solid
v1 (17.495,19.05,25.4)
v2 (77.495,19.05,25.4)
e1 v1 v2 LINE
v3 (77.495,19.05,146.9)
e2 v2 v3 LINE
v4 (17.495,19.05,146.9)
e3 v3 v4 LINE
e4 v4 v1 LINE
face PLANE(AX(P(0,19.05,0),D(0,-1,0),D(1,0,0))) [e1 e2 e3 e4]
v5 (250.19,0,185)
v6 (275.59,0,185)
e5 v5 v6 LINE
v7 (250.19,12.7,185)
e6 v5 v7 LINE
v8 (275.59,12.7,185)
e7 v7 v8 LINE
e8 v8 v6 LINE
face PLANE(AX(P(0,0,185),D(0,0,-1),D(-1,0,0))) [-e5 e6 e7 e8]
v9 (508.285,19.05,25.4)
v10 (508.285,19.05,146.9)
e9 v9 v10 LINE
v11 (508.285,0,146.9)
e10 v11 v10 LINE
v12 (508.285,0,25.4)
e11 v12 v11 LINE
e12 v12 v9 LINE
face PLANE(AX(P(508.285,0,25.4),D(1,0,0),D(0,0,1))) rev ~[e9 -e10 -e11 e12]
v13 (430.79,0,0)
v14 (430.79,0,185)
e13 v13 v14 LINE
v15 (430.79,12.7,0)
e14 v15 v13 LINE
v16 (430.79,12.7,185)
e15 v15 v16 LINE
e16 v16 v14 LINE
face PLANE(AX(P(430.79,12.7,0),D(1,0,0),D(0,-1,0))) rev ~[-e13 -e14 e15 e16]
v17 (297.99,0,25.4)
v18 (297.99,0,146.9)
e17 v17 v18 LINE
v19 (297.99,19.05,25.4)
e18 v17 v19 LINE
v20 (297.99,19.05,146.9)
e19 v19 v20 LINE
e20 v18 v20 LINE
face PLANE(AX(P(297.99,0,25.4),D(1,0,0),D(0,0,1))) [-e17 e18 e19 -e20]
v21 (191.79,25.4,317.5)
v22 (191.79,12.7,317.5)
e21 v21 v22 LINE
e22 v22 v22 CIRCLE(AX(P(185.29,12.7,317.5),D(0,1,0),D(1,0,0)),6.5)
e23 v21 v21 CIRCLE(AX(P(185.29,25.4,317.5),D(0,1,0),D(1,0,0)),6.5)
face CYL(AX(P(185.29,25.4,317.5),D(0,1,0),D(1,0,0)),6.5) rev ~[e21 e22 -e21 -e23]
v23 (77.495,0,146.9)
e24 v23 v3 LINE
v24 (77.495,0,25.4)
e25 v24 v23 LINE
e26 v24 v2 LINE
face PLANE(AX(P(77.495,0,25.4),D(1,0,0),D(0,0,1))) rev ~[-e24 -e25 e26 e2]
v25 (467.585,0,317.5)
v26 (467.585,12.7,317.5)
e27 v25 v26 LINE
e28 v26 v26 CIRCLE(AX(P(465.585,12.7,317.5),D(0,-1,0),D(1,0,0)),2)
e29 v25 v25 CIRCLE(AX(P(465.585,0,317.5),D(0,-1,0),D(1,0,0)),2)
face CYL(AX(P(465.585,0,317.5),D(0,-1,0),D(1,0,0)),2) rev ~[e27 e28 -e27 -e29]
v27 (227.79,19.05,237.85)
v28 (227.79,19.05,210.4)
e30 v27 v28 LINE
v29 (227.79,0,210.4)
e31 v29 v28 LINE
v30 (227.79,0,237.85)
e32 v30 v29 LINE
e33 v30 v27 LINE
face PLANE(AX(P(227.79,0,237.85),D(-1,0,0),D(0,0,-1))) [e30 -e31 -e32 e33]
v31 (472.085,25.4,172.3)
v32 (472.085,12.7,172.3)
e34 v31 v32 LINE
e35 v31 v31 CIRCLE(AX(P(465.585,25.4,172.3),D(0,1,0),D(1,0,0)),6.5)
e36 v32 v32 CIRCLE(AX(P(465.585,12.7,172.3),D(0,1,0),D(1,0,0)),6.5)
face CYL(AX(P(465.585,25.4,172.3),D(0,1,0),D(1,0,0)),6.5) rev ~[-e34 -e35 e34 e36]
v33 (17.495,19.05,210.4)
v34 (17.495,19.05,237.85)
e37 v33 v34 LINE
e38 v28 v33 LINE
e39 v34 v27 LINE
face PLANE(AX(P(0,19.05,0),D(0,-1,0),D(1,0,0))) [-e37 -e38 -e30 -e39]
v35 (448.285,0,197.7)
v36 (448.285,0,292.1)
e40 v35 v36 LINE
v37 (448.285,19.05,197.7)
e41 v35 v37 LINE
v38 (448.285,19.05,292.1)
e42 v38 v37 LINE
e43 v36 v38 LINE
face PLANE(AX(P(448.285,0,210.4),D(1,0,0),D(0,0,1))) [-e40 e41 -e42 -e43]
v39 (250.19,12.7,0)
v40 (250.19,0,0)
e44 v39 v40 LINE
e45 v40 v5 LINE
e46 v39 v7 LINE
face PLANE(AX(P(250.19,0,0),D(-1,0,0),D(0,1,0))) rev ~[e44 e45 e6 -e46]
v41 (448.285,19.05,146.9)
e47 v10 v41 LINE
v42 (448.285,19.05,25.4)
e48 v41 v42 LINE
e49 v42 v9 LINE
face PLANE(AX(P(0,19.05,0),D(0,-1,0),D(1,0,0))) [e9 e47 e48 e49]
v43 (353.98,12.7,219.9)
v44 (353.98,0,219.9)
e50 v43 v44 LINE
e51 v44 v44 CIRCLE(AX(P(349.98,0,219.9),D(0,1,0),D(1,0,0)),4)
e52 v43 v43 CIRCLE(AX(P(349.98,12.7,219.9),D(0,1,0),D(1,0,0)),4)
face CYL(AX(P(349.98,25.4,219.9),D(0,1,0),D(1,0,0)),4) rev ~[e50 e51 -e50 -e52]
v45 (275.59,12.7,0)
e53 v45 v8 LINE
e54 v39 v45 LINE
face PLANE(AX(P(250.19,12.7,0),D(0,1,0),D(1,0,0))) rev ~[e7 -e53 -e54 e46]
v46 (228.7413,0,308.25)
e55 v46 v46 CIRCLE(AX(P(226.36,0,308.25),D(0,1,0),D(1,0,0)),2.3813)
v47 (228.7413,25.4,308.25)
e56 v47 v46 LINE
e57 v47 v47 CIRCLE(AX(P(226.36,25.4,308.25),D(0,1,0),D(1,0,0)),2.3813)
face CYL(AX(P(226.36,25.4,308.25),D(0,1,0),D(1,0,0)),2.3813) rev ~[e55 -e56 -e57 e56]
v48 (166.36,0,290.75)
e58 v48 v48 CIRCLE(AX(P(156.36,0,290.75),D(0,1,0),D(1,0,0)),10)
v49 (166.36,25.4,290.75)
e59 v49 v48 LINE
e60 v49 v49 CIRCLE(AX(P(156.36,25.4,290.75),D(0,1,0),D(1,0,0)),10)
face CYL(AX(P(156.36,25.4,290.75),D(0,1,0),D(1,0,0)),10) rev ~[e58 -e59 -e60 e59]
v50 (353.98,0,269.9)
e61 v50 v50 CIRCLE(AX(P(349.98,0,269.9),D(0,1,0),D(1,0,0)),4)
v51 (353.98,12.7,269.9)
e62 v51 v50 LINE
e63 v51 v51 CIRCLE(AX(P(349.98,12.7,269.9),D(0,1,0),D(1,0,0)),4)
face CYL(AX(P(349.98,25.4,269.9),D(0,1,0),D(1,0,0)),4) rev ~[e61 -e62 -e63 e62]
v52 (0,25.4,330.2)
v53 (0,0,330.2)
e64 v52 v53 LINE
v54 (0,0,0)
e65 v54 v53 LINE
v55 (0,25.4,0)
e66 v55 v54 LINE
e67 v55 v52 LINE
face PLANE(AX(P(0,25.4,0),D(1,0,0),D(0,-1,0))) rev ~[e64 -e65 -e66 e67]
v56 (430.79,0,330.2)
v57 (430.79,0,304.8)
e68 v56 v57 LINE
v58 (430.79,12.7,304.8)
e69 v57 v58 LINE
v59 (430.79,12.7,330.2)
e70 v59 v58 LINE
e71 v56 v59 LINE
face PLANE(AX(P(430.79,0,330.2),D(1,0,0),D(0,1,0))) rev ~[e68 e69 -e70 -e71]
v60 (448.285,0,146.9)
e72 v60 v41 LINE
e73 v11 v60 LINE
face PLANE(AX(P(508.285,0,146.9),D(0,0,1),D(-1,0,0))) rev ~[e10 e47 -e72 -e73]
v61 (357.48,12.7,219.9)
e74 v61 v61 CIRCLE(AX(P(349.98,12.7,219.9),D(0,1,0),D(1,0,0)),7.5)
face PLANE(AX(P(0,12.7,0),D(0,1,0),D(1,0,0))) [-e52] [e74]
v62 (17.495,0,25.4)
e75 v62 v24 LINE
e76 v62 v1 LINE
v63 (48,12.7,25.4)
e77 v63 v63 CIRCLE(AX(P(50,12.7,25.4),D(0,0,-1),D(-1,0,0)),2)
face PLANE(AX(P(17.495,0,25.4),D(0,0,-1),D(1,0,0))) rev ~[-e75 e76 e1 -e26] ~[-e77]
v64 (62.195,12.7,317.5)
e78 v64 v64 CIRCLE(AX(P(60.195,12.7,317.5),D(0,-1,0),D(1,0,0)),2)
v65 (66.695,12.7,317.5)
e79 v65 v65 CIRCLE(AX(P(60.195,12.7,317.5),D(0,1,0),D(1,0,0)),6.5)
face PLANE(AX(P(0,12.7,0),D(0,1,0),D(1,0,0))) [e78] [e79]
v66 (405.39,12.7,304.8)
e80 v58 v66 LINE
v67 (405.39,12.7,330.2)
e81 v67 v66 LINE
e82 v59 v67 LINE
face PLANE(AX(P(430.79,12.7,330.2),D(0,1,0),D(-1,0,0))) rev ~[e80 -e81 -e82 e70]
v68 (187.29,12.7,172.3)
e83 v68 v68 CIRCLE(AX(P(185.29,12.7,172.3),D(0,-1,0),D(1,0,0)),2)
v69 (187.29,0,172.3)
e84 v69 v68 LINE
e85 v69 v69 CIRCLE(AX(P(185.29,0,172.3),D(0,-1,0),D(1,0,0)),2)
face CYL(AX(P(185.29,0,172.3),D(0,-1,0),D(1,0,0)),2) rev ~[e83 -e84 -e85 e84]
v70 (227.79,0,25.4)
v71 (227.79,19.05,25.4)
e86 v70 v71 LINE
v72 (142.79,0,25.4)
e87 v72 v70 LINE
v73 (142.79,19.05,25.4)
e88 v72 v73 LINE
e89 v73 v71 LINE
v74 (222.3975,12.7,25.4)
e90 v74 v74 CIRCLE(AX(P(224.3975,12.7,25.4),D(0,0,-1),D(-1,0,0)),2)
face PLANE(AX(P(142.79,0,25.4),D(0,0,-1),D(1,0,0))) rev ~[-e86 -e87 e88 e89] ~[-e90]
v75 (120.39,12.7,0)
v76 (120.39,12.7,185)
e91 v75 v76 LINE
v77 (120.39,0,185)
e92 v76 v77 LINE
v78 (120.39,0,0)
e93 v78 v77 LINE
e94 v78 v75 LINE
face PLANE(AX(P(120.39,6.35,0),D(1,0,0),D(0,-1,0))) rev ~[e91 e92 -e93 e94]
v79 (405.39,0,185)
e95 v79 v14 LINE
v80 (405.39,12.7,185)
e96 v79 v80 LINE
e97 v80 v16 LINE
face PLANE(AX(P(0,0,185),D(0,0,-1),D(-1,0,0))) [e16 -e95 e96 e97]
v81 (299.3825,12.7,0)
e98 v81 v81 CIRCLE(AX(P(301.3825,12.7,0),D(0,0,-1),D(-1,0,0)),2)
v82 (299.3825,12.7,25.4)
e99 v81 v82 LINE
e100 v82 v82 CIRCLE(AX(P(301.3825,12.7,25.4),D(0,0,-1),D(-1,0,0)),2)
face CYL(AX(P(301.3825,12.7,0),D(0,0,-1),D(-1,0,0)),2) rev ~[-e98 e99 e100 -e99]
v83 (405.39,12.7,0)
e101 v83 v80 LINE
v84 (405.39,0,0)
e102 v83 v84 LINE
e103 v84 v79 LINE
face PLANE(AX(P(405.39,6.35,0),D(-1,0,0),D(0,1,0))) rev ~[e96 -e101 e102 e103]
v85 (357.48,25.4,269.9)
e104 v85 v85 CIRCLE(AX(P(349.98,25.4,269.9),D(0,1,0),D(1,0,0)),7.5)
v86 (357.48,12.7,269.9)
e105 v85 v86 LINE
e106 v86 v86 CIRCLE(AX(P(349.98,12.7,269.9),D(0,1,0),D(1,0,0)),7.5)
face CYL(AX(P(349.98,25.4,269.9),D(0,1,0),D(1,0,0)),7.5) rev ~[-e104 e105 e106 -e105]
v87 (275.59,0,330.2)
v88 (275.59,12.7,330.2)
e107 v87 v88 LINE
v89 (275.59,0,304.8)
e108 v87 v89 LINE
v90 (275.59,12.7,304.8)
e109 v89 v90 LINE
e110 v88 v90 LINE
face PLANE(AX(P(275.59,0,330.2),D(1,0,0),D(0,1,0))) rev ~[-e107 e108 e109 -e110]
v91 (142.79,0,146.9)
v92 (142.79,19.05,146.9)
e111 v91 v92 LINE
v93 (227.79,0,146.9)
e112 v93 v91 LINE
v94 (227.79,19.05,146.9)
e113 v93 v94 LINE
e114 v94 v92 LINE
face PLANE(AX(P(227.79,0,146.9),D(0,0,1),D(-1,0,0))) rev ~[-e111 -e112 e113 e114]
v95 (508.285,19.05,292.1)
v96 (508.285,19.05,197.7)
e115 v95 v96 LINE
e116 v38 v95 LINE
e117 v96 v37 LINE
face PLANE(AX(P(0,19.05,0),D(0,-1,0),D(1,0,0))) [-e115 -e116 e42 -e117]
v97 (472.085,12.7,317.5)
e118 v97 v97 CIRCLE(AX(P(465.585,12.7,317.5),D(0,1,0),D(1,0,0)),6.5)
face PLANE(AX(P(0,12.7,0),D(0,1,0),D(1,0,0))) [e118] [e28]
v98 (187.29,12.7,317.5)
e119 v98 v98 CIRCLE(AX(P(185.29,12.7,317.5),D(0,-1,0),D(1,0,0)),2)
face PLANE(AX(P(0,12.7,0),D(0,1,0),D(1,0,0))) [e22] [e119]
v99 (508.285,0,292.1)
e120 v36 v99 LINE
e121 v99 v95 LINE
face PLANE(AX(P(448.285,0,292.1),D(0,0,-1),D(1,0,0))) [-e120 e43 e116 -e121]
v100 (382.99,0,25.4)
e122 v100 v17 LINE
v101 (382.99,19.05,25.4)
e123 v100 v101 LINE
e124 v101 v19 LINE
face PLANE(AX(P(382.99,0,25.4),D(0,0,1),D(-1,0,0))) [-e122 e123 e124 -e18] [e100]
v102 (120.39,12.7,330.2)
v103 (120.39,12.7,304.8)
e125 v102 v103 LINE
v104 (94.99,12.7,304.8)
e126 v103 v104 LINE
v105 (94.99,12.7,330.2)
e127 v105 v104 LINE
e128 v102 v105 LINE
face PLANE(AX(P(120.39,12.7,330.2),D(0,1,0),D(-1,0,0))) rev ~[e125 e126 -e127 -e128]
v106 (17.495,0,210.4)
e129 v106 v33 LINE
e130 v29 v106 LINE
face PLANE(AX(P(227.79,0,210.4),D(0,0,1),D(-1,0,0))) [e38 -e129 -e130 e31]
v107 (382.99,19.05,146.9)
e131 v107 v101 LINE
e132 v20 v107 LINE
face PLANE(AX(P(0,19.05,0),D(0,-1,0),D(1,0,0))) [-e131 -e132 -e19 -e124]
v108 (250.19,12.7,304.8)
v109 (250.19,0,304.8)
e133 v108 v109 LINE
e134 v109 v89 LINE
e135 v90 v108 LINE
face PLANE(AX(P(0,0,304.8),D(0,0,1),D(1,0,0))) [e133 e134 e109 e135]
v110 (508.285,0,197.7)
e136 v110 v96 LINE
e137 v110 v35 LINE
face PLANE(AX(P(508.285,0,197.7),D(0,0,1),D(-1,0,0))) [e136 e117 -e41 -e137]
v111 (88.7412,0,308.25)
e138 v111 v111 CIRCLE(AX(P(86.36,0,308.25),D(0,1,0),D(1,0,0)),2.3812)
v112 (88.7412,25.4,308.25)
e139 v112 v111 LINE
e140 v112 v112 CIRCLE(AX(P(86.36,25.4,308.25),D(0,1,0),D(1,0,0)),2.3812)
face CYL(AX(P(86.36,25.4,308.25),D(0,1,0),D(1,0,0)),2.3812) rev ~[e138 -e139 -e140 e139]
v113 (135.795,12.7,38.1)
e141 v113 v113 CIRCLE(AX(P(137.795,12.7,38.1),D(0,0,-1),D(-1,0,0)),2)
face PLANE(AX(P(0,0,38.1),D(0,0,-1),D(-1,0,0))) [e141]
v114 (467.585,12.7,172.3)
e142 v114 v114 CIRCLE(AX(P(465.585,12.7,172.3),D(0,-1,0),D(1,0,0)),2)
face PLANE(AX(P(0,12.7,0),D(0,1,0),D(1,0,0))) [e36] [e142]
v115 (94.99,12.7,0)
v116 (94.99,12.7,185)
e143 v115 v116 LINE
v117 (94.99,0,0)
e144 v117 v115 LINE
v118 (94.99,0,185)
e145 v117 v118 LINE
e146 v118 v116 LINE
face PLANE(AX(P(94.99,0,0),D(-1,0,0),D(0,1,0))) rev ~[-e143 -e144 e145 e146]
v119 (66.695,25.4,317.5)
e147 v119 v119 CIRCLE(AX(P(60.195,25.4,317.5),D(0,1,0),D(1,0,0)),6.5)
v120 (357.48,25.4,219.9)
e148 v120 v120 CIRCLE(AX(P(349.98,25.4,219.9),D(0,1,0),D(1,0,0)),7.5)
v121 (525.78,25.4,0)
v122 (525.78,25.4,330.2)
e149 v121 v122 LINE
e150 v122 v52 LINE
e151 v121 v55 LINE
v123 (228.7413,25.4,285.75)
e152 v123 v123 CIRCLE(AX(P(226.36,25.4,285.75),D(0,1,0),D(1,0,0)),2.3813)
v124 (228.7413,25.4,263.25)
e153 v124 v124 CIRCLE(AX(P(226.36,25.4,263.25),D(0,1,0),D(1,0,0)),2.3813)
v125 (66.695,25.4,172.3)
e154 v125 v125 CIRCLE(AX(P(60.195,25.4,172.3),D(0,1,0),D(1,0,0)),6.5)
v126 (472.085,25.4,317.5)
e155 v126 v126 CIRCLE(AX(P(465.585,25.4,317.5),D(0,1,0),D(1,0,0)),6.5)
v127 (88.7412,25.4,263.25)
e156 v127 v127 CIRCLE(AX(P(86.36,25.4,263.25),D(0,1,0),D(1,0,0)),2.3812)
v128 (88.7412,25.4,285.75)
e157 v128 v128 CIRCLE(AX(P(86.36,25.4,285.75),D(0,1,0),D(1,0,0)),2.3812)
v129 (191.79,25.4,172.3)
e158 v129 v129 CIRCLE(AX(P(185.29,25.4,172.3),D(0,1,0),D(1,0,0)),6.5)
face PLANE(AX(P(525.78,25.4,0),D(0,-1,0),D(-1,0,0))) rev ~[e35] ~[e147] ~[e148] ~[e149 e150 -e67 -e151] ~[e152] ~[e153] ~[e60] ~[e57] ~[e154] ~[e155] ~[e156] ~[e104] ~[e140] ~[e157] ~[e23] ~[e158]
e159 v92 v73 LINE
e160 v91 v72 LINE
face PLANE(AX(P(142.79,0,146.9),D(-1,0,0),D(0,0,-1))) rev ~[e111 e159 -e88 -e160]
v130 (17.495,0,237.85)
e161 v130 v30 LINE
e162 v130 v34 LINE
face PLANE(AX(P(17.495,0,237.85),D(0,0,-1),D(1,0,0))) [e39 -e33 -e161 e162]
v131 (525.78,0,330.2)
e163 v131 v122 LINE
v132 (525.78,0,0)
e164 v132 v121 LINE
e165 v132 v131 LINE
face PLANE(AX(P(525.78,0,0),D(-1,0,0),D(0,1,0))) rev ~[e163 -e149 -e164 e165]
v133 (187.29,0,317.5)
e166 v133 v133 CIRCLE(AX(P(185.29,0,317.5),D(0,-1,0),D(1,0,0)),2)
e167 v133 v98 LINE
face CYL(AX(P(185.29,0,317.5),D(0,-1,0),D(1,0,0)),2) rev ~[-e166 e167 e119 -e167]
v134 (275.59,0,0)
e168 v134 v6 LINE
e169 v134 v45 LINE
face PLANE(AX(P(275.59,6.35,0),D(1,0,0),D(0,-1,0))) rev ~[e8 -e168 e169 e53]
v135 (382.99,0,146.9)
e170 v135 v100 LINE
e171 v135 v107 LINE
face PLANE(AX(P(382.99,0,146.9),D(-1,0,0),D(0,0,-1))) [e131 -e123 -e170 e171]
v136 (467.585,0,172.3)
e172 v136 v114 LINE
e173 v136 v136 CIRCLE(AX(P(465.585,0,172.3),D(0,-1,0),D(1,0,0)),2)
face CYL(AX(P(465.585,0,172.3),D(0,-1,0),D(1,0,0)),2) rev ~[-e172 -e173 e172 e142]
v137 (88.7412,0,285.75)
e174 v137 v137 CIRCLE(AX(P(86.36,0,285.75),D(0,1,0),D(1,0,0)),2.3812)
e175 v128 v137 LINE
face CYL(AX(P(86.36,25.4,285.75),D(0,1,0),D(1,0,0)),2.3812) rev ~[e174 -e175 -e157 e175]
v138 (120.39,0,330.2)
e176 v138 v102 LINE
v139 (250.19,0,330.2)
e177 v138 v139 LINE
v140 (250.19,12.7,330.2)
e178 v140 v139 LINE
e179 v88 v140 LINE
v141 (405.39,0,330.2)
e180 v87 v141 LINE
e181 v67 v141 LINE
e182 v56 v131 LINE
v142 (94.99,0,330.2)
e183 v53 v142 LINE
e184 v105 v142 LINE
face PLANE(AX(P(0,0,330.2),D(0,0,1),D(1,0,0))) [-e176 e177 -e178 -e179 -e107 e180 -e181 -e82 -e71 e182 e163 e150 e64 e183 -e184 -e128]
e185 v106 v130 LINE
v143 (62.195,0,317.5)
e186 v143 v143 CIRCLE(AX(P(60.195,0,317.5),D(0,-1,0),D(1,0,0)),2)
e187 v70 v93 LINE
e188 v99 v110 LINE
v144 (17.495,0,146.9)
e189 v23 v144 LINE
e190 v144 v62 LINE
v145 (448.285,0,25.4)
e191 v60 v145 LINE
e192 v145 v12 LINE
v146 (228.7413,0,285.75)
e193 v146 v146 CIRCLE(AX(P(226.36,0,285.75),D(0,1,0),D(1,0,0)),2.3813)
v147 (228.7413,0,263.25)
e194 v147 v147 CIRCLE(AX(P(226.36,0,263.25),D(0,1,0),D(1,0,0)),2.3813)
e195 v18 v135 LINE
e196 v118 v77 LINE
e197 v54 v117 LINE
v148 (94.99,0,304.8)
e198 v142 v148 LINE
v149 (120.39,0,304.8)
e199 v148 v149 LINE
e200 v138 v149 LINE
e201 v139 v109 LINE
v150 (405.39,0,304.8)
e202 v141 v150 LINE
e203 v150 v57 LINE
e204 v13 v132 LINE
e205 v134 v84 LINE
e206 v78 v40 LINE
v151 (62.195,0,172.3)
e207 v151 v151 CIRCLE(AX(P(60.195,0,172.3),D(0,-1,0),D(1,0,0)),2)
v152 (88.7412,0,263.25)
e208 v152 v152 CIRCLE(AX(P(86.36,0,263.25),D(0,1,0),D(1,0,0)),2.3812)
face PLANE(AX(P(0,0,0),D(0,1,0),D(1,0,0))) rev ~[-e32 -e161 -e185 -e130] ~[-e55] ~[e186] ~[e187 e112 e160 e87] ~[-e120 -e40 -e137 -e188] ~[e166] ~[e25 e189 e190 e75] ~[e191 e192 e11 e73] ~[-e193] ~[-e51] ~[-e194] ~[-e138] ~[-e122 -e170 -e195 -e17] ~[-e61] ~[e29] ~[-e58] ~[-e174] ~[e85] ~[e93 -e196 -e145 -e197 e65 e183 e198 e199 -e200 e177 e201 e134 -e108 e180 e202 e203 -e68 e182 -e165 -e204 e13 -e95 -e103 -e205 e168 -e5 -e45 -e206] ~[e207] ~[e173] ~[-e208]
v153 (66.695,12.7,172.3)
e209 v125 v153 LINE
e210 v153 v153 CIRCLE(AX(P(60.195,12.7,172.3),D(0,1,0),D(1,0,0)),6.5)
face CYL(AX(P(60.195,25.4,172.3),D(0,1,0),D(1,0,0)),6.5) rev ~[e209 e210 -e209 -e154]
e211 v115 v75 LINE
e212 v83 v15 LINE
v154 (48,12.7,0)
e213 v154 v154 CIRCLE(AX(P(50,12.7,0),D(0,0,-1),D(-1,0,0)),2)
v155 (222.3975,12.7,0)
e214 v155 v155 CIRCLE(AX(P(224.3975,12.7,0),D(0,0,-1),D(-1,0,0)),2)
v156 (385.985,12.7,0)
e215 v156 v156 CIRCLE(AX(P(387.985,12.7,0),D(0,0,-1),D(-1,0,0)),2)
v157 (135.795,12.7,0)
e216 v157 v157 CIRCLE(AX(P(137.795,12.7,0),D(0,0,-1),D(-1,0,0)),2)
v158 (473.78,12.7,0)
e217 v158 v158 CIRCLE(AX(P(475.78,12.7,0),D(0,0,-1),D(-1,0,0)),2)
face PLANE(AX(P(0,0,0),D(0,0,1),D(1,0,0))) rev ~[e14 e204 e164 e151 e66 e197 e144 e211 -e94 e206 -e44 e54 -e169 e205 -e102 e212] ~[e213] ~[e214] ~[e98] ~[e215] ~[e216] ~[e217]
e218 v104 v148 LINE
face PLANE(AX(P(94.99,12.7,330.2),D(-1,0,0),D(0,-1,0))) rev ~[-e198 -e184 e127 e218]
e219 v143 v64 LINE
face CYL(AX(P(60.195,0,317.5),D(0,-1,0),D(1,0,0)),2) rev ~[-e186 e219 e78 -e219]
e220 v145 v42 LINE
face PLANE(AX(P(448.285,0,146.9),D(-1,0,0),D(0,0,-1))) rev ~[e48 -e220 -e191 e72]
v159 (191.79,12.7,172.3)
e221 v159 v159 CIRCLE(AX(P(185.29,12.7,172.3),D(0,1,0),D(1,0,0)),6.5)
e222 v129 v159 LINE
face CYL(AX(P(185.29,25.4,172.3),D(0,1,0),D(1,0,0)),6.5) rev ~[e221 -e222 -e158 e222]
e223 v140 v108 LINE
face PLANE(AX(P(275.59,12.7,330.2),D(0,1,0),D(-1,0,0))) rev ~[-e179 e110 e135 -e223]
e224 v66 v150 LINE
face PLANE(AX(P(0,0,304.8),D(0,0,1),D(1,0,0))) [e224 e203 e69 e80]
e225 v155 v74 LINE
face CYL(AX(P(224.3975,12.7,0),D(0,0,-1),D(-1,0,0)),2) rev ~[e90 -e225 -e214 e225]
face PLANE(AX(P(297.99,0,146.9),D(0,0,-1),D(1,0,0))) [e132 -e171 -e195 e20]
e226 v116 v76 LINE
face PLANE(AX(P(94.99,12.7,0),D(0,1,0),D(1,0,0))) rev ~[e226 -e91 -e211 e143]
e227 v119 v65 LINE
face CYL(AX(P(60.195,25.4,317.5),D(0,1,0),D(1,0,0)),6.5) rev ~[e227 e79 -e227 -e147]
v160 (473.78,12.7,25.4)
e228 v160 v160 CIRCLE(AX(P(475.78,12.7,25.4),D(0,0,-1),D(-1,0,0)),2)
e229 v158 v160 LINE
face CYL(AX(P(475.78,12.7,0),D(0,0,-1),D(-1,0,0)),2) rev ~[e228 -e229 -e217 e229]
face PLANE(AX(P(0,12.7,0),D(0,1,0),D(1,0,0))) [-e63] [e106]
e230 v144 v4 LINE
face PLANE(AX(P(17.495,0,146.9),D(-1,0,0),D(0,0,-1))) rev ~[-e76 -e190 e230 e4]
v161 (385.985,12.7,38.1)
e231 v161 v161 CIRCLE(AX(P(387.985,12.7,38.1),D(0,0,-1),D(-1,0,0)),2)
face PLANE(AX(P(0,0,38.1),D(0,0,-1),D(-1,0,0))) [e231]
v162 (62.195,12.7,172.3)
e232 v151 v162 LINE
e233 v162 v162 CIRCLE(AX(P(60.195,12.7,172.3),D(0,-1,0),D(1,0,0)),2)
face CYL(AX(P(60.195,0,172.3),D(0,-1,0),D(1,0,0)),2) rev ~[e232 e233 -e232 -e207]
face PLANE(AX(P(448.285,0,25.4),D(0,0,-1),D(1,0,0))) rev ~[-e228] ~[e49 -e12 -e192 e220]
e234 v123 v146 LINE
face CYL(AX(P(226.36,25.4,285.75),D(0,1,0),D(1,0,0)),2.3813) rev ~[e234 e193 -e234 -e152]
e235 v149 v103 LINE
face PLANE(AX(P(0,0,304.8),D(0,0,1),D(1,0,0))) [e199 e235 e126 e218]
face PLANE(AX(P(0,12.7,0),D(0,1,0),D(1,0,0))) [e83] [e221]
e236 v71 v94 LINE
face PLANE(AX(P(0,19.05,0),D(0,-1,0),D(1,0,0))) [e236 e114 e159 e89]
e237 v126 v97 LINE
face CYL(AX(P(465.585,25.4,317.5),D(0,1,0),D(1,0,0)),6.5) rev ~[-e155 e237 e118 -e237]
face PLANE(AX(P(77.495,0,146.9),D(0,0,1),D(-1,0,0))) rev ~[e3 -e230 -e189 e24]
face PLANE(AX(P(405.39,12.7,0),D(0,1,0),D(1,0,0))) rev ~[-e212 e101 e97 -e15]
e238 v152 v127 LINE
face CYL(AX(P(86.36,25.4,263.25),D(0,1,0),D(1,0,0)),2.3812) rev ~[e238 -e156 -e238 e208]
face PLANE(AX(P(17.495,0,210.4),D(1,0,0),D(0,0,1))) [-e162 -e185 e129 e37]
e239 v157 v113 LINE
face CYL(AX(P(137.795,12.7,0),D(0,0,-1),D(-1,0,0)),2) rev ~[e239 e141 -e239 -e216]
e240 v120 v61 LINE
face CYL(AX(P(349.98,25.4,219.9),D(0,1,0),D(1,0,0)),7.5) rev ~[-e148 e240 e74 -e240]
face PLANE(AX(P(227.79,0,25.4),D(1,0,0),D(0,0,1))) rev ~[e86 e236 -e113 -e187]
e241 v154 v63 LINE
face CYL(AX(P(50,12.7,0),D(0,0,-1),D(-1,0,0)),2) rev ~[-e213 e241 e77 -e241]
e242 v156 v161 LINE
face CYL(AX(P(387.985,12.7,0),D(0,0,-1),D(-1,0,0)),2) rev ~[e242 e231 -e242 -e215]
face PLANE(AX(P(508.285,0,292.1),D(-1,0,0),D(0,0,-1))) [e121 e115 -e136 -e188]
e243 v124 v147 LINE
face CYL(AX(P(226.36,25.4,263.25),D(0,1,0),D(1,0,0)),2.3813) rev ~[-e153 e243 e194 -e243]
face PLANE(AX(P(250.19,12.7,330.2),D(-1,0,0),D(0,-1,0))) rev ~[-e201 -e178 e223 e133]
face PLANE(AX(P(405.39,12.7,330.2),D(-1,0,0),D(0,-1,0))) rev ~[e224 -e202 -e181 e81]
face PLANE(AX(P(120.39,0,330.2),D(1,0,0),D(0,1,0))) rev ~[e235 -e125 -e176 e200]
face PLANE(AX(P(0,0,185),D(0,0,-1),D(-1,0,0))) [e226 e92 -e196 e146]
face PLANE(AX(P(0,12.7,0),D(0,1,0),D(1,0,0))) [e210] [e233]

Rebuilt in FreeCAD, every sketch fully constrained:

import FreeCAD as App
import Part
import Sketcher
from FreeCAD import Vector
Q = App.Units.Quantity

doc = App.newDocument("Part")
params = doc.addObject("Spreadsheet::Sheet", "Params")
for row, (alias, value) in enumerate([
    ("sketch1_height", "25.4 mm"),
    ("sketch1_width", "525.78 mm"),
    ("pad1_length", "330.2 mm"),
    ("sketch2_diameter", "20 mm"),
    ("sketch3_width", "25.4 mm"),
    ("sketch3_height", "12.7 mm"),
    ("pocket2_length", "185 mm"),
    ("sketch4_width", "25.4 mm"),
    ("sketch4_height", "12.7 mm"),
    ("pocket3_length", "25.4 mm"),
    ("sketch5_diameter", "4 mm"),
    ("sketch6_diameter", "13 mm"),
    ("pocket5_length", "12.7 mm"),
    ("sketch7_diameter", "8 mm"),
    ("sketch8_diameter", "15 mm"),
    ("pocket7_length", "12.7 mm"),
    ("sketch9_width", "85 mm"),
    ("sketch9_width2", "60 mm"),
    ("sketch9_height", "121.5 mm"),
    ("sketch9_height2", "94.4 mm"),
    ("sketch9_height3", "27.45 mm"),
    ("pocket8_length", "19.05 mm"),
    ("sketch10_diameter", "4 mm"),
    ("pocket9_length", "38.1 mm"),
    ("sketch11_diameter", "4 mm"),
    ("pocket10_length", "38.1 mm"),
], start=1):
    params.set(f"A{row}", alias)
    params.set(f"B{row}", "=" + value)
    params.setAlias(f"B{row}", alias)

body = doc.addObject("PartDesign::Body", "Body")

# Sketch on XY plane
sketch1 = body.newObject("Sketcher::SketchObject", "Sketch")
sketch1.AttachmentSupport = (doc.getObject("XY_Plane"), [""])
sketch1.MapMode = "FlatFace"
sketch1.addGeometry([
    Part.LineSegment(Vector(0, 25, 0), Vector(0, 0, 0)),
    Part.LineSegment(Vector(0, 0, 0), Vector(526, 0, 0)),
    Part.LineSegment(Vector(526, 0, 0), Vector(526, 25, 0)),
    Part.LineSegment(Vector(526, 25, 0), Vector(0, 25, 0)),
], False)
sketch1.addConstraint([
    Sketcher.Constraint("Coincident", 0, 2, 1, 1),
    Sketcher.Constraint("Coincident", 1, 2, 2, 1),
    Sketcher.Constraint("Coincident", 2, 2, 3, 1),
    Sketcher.Constraint("Coincident", 3, 2, 0, 1),
    Sketcher.Constraint("Vertical", 0),
    Sketcher.Constraint("Horizontal", 1),
    Sketcher.Constraint("Vertical", 2),
    Sketcher.Constraint("Horizontal", 3),
    Sketcher.Constraint("Coincident", 0, 2, -1, 1),
    Sketcher.Constraint("DistanceY", 0, 2, 0, 1, Q("25.4 mm")),
    Sketcher.Constraint("DistanceX", 1, 1, 1, 2, Q("525.78 mm")),
])
sketch1.setExpression("Constraints[9]", "Params.sketch1_height")
sketch1.setExpression("Constraints[10]", "Params.sketch1_width")
pad1 = body.newObject("PartDesign::Pad", "Pad")
pad1.Profile = sketch1
pad1.setExpression("Length", "Params.pad1_length")

# Sketch on XZ plane
sketch2 = body.newObject("Sketcher::SketchObject", "Sketch001")
sketch2.AttachmentSupport = (doc.getObject("XZ_Plane"), [""])
sketch2.MapMode = "FlatFace"
sketch2.AttachmentOffset = App.Placement(Vector(0, 0, -25.4), App.Rotation())
sketch2.addGeometry([
    Part.Circle(Vector(86.4, 285.8, 0), Vector(0, 0, 1), 2.4),  # 0
    Part.Circle(Vector(86.4, 308.2, 0), Vector(0, 0, 1), 2.4),  # 1
    Part.Circle(Vector(86.4, 263.2, 0), Vector(0, 0, 1), 2.4),  # 2
    Part.Circle(Vector(226.4, 263.2, 0), Vector(0, 0, 1), 2.4),  # 3
    Part.Circle(Vector(226.4, 285.8, 0), Vector(0, 0, 1), 2.4),  # 4
    Part.Circle(Vector(226.4, 308.2, 0), Vector(0, 0, 1), 2.4),  # 5
    Part.Circle(Vector(156.4, 290.8, 0), Vector(0, 0, 1), 10),  # 6
], False)
sketch2.addConstraint([
    Sketcher.Constraint("Equal", 0, 1),
    Sketcher.Constraint("Equal", 1, 2),
    Sketcher.Constraint("Equal", 2, 3),
    Sketcher.Constraint("Equal", 3, 4),
    Sketcher.Constraint("Equal", 4, 5),
    Sketcher.Constraint("Horizontal", 2, 3, 3, 3),
    Sketcher.Constraint("Horizontal", 0, 3, 4, 3),
    Sketcher.Constraint("Horizontal", 1, 3, 5, 3),
    Sketcher.Constraint("Vertical", 0, 3, 1, 3),
    Sketcher.Constraint("Vertical", 1, 3, 2, 3),
    Sketcher.Constraint("Vertical", 3, 3, 4, 3),
    Sketcher.Constraint("Vertical", 4, 3, 5, 3),
    Sketcher.Constraint("Diameter", 6, Q("20 mm")),
    Sketcher.Constraint("DistanceY", 2, 3, 1, 3, Q("45 mm")),
    Sketcher.Constraint("DistanceX", 2, 3, 3, 3, Q("140 mm")),
    Sketcher.Constraint("Diameter", 0, Q("4.7624 mm")),
    Sketcher.Constraint("DistanceX", -1, 1, 0, 3, Q("86.36 mm")),
    Sketcher.Constraint("DistanceX", 6, 3, 4, 3, Q("70 mm")),
    Sketcher.Constraint("DistanceY", 4, 3, 6, 3, Q("5 mm")),
    Sketcher.Constraint("DistanceY", 0, 3, 1, 3, Q("22.5 mm")),
    Sketcher.Constraint("DistanceY", -1, 1, 0, 3, Q("285.75 mm")),
])
sketch2.setExpression("Constraints[12]", "Params.sketch2_diameter")
pocket1 = body.newObject("PartDesign::Pocket", "Pocket")
pocket1.Profile = sketch2
pocket1.Type = "ThroughAll"
pocket1.Reversed = True

# Sketch on XY plane
sketch3 = body.newObject("Sketcher::SketchObject", "Sketch002")
sketch3.AttachmentSupport = (doc.getObject("XY_Plane"), [""])
sketch3.MapMode = "FlatFace"
sketch3.addGeometry([
    Part.LineSegment(Vector(120, 0, 0), Vector(95, 0, 0)),  # 0
    Part.LineSegment(Vector(95, 0, 0), Vector(95, 13, 0)),  # 1
    Part.LineSegment(Vector(95, 13, 0), Vector(120, 13, 0)),  # 2
    Part.LineSegment(Vector(120, 13, 0), Vector(120, 0, 0)),  # 3
    Part.LineSegment(Vector(276, 0, 0), Vector(250, 0, 0)),  # 4
    Part.LineSegment(Vector(250, 0, 0), Vector(250, 13, 0)),  # 5
    Part.LineSegment(Vector(250, 13, 0), Vector(276, 13, 0)),  # 6
    Part.LineSegment(Vector(276, 13, 0), Vector(276, 0, 0)),  # 7
    Part.LineSegment(Vector(431, 0, 0), Vector(405, 0, 0)),  # 8
    Part.LineSegment(Vector(405, 0, 0), Vector(405, 13, 0)),  # 9
    Part.LineSegment(Vector(405, 13, 0), Vector(431, 13, 0)),  # 10
    Part.LineSegment(Vector(431, 13, 0), Vector(431, 0, 0)),  # 11
], False)
sketch3.addConstraint([
    Sketcher.Constraint("Coincident", 0, 2, 1, 1),
    Sketcher.Constraint("Coincident", 1, 2, 2, 1),
    Sketcher.Constraint("Coincident", 2, 2, 3, 1),
    Sketcher.Constraint("Coincident", 3, 2, 0, 1),
    Sketcher.Constraint("Coincident", 4, 2, 5, 1),
    Sketcher.Constraint("Coincident", 5, 2, 6, 1),
    Sketcher.Constraint("Coincident", 6, 2, 7, 1),
    Sketcher.Constraint("Coincident", 7, 2, 4, 1),
    Sketcher.Constraint("Coincident", 8, 2, 9, 1),
    Sketcher.Constraint("Coincident", 9, 2, 10, 1),
    Sketcher.Constraint("Coincident", 10, 2, 11, 1),
    Sketcher.Constraint("Coincident", 11, 2, 8, 1),
    Sketcher.Constraint("Horizontal", 0),
    Sketcher.Constraint("Vertical", 1),
    Sketcher.Constraint("Horizontal", 2),
    Sketcher.Constraint("Vertical", 3),
    Sketcher.Constraint("Horizontal", 4),
    Sketcher.Constraint("Vertical", 5),
    Sketcher.Constraint("Horizontal", 6),
    Sketcher.Constraint("Vertical", 7),
    Sketcher.Constraint("Horizontal", 8),
    Sketcher.Constraint("Vertical", 9),
    Sketcher.Constraint("Horizontal", 10),
    Sketcher.Constraint("Vertical", 11),
    Sketcher.Constraint("PointOnObject", 0, 2, -1),
    Sketcher.Constraint("PointOnObject", 4, 2, -1),
    Sketcher.Constraint("PointOnObject", 8, 2, -1),
    Sketcher.Constraint("Horizontal", 2, 2, 5, 2),
    Sketcher.Constraint("Horizontal", 6, 2, 9, 2),
    Sketcher.Constraint("Equal", 2, 4),
    Sketcher.Constraint("Equal", 6, 8),
    Sketcher.Constraint("DistanceX", 0, 2, 0, 1, Q("25.4 mm")),
    Sketcher.Constraint("DistanceY", 1, 1, 1, 2, Q("12.7 mm")),
    Sketcher.Constraint("DistanceX", 3, 2, 8, 2, Q("285 mm")),
    Sketcher.Constraint("DistanceX", 3, 2, 4, 2, Q("129.8 mm")),
    Sketcher.Constraint("DistanceX", -1, 1, 0, 2, Q("94.99 mm")),
])
sketch3.setExpression("Constraints[31]", "Params.sketch3_width")
sketch3.setExpression("Constraints[32]", "Params.sketch3_height")
pocket2 = body.newObject("PartDesign::Pocket", "Pocket001")
pocket2.Profile = sketch3
pocket2.setExpression("Length", "Params.pocket2_length")
pocket2.Reversed = True

# Sketch on XY plane
sketch4 = body.newObject("Sketcher::SketchObject", "Sketch003")
sketch4.AttachmentSupport = (doc.getObject("XY_Plane"), [""])
sketch4.MapMode = "FlatFace"
sketch4.AttachmentOffset = App.Placement(Vector(0, 0, 330.2), App.Rotation())
sketch4.addGeometry([
    Part.LineSegment(Vector(95, 13, 0), Vector(95, 0, 0)),  # 0
    Part.LineSegment(Vector(95, 0, 0), Vector(120, 0, 0)),  # 1
    Part.LineSegment(Vector(120, 0, 0), Vector(120, 13, 0)),  # 2
    Part.LineSegment(Vector(120, 13, 0), Vector(95, 13, 0)),  # 3
    Part.LineSegment(Vector(250, 13, 0), Vector(250, 0, 0)),  # 4
    Part.LineSegment(Vector(250, 0, 0), Vector(276, 0, 0)),  # 5
    Part.LineSegment(Vector(276, 0, 0), Vector(276, 13, 0)),  # 6
    Part.LineSegment(Vector(276, 13, 0), Vector(250, 13, 0)),  # 7
    Part.LineSegment(Vector(405, 13, 0), Vector(405, 0, 0)),  # 8
    Part.LineSegment(Vector(405, 0, 0), Vector(431, 0, 0)),  # 9
    Part.LineSegment(Vector(431, 0, 0), Vector(431, 13, 0)),  # 10
    Part.LineSegment(Vector(431, 13, 0), Vector(405, 13, 0)),  # 11
], False)
sketch4.addConstraint([
    Sketcher.Constraint("Coincident", 0, 2, 1, 1),
    Sketcher.Constraint("Coincident", 1, 2, 2, 1),
    Sketcher.Constraint("Coincident", 2, 2, 3, 1),
    Sketcher.Constraint("Coincident", 3, 2, 0, 1),
    Sketcher.Constraint("Coincident", 4, 2, 5, 1),
    Sketcher.Constraint("Coincident", 5, 2, 6, 1),
    Sketcher.Constraint("Coincident", 6, 2, 7, 1),
    Sketcher.Constraint("Coincident", 7, 2, 4, 1),
    Sketcher.Constraint("Coincident", 8, 2, 9, 1),
    Sketcher.Constraint("Coincident", 9, 2, 10, 1),
    Sketcher.Constraint("Coincident", 10, 2, 11, 1),
    Sketcher.Constraint("Coincident", 11, 2, 8, 1),
    Sketcher.Constraint("Vertical", 0),
    Sketcher.Constraint("Horizontal", 1),
    Sketcher.Constraint("Vertical", 2),
    Sketcher.Constraint("Horizontal", 3),
    Sketcher.Constraint("Vertical", 4),
    Sketcher.Constraint("Horizontal", 5),
    Sketcher.Constraint("Vertical", 6),
    Sketcher.Constraint("Horizontal", 7),
    Sketcher.Constraint("Vertical", 8),
    Sketcher.Constraint("Horizontal", 9),
    Sketcher.Constraint("Vertical", 10),
    Sketcher.Constraint("Horizontal", 11),
    Sketcher.Constraint("PointOnObject", 0, 2, -1),
    Sketcher.Constraint("PointOnObject", 4, 2, -1),
    Sketcher.Constraint("PointOnObject", 8, 2, -1),
    Sketcher.Constraint("Horizontal", 3, 2, 6, 2),
    Sketcher.Constraint("Horizontal", 7, 2, 10, 2),
    Sketcher.Constraint("Equal", 3, 5),
    Sketcher.Constraint("Equal", 7, 9),
    Sketcher.Constraint("DistanceX", 1, 1, 1, 2, Q("25.4 mm")),
    Sketcher.Constraint("DistanceY", 0, 2, 0, 1, Q("12.7 mm")),
    Sketcher.Constraint("DistanceX", 1, 2, 8, 2, Q("285 mm")),
    Sketcher.Constraint("DistanceX", 1, 2, 4, 2, Q("129.8 mm")),
    Sketcher.Constraint("DistanceX", -1, 1, 0, 2, Q("94.99 mm")),
])
sketch4.setExpression("Constraints[31]", "Params.sketch4_width")
sketch4.setExpression("Constraints[32]", "Params.sketch4_height")
pocket3 = body.newObject("PartDesign::Pocket", "Pocket002")
pocket3.Profile = sketch4
pocket3.setExpression("Length", "Params.pocket3_length")

# Sketch on XZ plane
sketch5 = body.newObject("Sketcher::SketchObject", "Sketch004")
sketch5.AttachmentSupport = (doc.getObject("XZ_Plane"), [""])
sketch5.MapMode = "FlatFace"
sketch5.addGeometry([
    Part.Circle(Vector(60.2, 317.5, 0), Vector(0, 0, 1), 2),  # 0
    Part.Circle(Vector(185.3, 317.5, 0), Vector(0, 0, 1), 2),  # 1
    Part.Circle(Vector(465.6, 317.5, 0), Vector(0, 0, 1), 2),  # 2
    Part.Circle(Vector(465.6, 172.3, 0), Vector(0, 0, 1), 2),  # 3
    Part.Circle(Vector(185.3, 172.3, 0), Vector(0, 0, 1), 2),  # 4
    Part.Circle(Vector(60.2, 172.3, 0), Vector(0, 0, 1), 2),  # 5
], False)
sketch5.addConstraint([
    Sketcher.Constraint("Equal", 0, 1),
    Sketcher.Constraint("Equal", 1, 2),
    Sketcher.Constraint("Equal", 2, 3),
    Sketcher.Constraint("Equal", 3, 4),
    Sketcher.Constraint("Equal", 4, 5),
    Sketcher.Constraint("Horizontal", 0, 3, 1, 3),
    Sketcher.Constraint("Horizontal", 1, 3, 2, 3),
    Sketcher.Constraint("Horizontal", 3, 3, 4, 3),
    Sketcher.Constraint("Horizontal", 4, 3, 5, 3),
    Sketcher.Constraint("Vertical", 2, 3, 3, 3),
    Sketcher.Constraint("Vertical", 1, 3, 4, 3),
    Sketcher.Constraint("Vertical", 0, 3, 5, 3),
    Sketcher.Constraint("Diameter", 0, Q("4 mm")),
    Sketcher.Constraint("DistanceX", -1, 1, 0, 3, Q("60.195 mm")),
    Sketcher.Constraint("DistanceY", -1, 1, 0, 3, Q("317.5 mm")),
    Sketcher.Constraint("DistanceY", -1, 1, 3, 3, Q("172.3 mm")),
    Sketcher.Constraint("DistanceX", -1, 1, 1, 3, Q("185.29 mm")),
    Sketcher.Constraint("DistanceX", 0, 3, 2, 3, Q("405.39 mm")),
])
sketch5.setExpression("Constraints[12]", "Params.sketch5_diameter")
pocket4 = body.newObject("PartDesign::Pocket", "Pocket003")
pocket4.Profile = sketch5
pocket4.Type = "ThroughAll"

# Sketch on XZ plane
sketch6 = body.newObject("Sketcher::SketchObject", "Sketch005")
sketch6.AttachmentSupport = (doc.getObject("XZ_Plane"), [""])
sketch6.MapMode = "FlatFace"
sketch6.AttachmentOffset = App.Placement(Vector(0, 0, -25.4), App.Rotation())
sketch6.addGeometry([
    Part.Circle(Vector(60, 172, 0), Vector(0, 0, 1), 6),  # 0
    Part.Circle(Vector(185, 172, 0), Vector(0, 0, 1), 6),  # 1
    Part.Circle(Vector(466, 172, 0), Vector(0, 0, 1), 6),  # 2
    Part.Circle(Vector(466, 318, 0), Vector(0, 0, 1), 6),  # 3
    Part.Circle(Vector(185, 318, 0), Vector(0, 0, 1), 6),  # 4
    Part.Circle(Vector(60, 318, 0), Vector(0, 0, 1), 6),  # 5
], False)
sketch6.addConstraint([
    Sketcher.Constraint("Equal", 0, 1),
    Sketcher.Constraint("Equal", 1, 2),
    Sketcher.Constraint("Equal", 2, 3),
    Sketcher.Constraint("Equal", 3, 4),
    Sketcher.Constraint("Equal", 4, 5),
    Sketcher.Constraint("Horizontal", 0, 3, 1, 3),
    Sketcher.Constraint("Horizontal", 1, 3, 2, 3),
    Sketcher.Constraint("Horizontal", 3, 3, 4, 3),
    Sketcher.Constraint("Horizontal", 4, 3, 5, 3),
    Sketcher.Constraint("Vertical", 2, 3, 3, 3),
    Sketcher.Constraint("Vertical", 1, 3, 4, 3),
    Sketcher.Constraint("Vertical", 0, 3, 5, 3),
    Sketcher.Constraint("Diameter", 0, Q("13 mm")),
    Sketcher.Constraint("DistanceY", -1, 1, 0, 3, Q("172.3 mm")),
    Sketcher.Constraint("DistanceY", -1, 1, 3, 3, Q("317.5 mm")),
    Sketcher.Constraint("DistanceX", -1, 1, 1, 3, Q("185.29 mm")),
    Sketcher.Constraint("DistanceX", 0, 3, 2, 3, Q("405.39 mm")),
    Sketcher.Constraint("DistanceX", -1, 1, 0, 3, Q("60.195 mm")),
])
sketch6.setExpression("Constraints[12]", "Params.sketch6_diameter")
pocket5 = body.newObject("PartDesign::Pocket", "Pocket004")
pocket5.Profile = sketch6
pocket5.setExpression("Length", "Params.pocket5_length")
pocket5.Reversed = True

# Sketch on XZ plane
sketch7 = body.newObject("Sketcher::SketchObject", "Sketch006")
sketch7.AttachmentSupport = (doc.getObject("XZ_Plane"), [""])
sketch7.MapMode = "FlatFace"
sketch7.AttachmentOffset = App.Placement(Vector(0, 0, -25.4), App.Rotation())
sketch7.addGeometry([
    Part.Circle(Vector(350, 219.9, 0), Vector(0, 0, 1), 4),
    Part.Circle(Vector(350, 269.9, 0), Vector(0, 0, 1), 4),
], False)
sketch7.addConstraint([
    Sketcher.Constraint("Equal", 0, 1),
    Sketcher.Constraint("Vertical", 0, 3, 1, 3),
    Sketcher.Constraint("Diameter", 0, Q("8 mm")),
    Sketcher.Constraint("DistanceY", 0, 3, 1, 3, Q("50 mm")),
    Sketcher.Constraint("DistanceY", -1, 1, 0, 3, Q("219.9 mm")),
    Sketcher.Constraint("DistanceX", -1, 1, 0, 3, Q("349.98 mm")),
])
sketch7.setExpression("Constraints[2]", "Params.sketch7_diameter")
pocket6 = body.newObject("PartDesign::Pocket", "Pocket005")
pocket6.Profile = sketch7
pocket6.Type = "ThroughAll"
pocket6.Reversed = True

# Sketch on XZ plane
sketch8 = body.newObject("Sketcher::SketchObject", "Sketch007")
sketch8.AttachmentSupport = (doc.getObject("XZ_Plane"), [""])
sketch8.MapMode = "FlatFace"
sketch8.AttachmentOffset = App.Placement(Vector(0, 0, -25.4), App.Rotation())
sketch8.addGeometry([
    Part.Circle(Vector(350, 220, 0), Vector(0, 0, 1), 8),
    Part.Circle(Vector(350, 270, 0), Vector(0, 0, 1), 8),
], False)
sketch8.addConstraint([
    Sketcher.Constraint("Equal", 0, 1),
    Sketcher.Constraint("Vertical", 0, 3, 1, 3),
    Sketcher.Constraint("Diameter", 0, Q("15 mm")),
    Sketcher.Constraint("DistanceY", 0, 3, 1, 3, Q("50 mm")),
    Sketcher.Constraint("DistanceY", -1, 1, 0, 3, Q("219.9 mm")),
    Sketcher.Constraint("DistanceX", -1, 1, 0, 3, Q("349.98 mm")),
])
sketch8.setExpression("Constraints[2]", "Params.sketch8_diameter")
pocket7 = body.newObject("PartDesign::Pocket", "Pocket006")
pocket7.Profile = sketch8
pocket7.setExpression("Length", "Params.pocket7_length")
pocket7.Reversed = True

# Sketch on XZ plane
sketch9 = body.newObject("Sketcher::SketchObject", "Sketch008")
sketch9.AttachmentSupport = (doc.getObject("XZ_Plane"), [""])
sketch9.MapMode = "FlatFace"
sketch9.addGeometry([
    Part.LineSegment(Vector(383, 146.9, 0), Vector(298, 146.9, 0)),  # 0
    Part.LineSegment(Vector(298, 146.9, 0), Vector(298, 25.4, 0)),  # 1
    Part.LineSegment(Vector(298, 25.4, 0), Vector(383, 25.4, 0)),  # 2
    Part.LineSegment(Vector(383, 25.4, 0), Vector(383, 146.9, 0)),  # 3
    Part.LineSegment(Vector(17.5, 210.4, 0), Vector(227.8, 210.4, 0)),  # 4
    Part.LineSegment(Vector(227.8, 210.4, 0), Vector(227.8, 237.8, 0)),  # 5
    Part.LineSegment(Vector(227.8, 237.8, 0), Vector(17.5, 237.8, 0)),  # 6
    Part.LineSegment(Vector(17.5, 237.8, 0), Vector(17.5, 210.4, 0)),  # 7
    Part.LineSegment(Vector(448.3, 292.1, 0), Vector(448.3, 197.7, 0)),  # 8
    Part.LineSegment(Vector(448.3, 197.7, 0), Vector(508.3, 197.7, 0)),  # 9
    Part.LineSegment(Vector(508.3, 197.7, 0), Vector(508.3, 292.1, 0)),  # 10
    Part.LineSegment(Vector(508.3, 292.1, 0), Vector(448.3, 292.1, 0)),  # 11
    Part.LineSegment(Vector(448.3, 146.9, 0), Vector(448.3, 25.4, 0)),  # 12
    Part.LineSegment(Vector(448.3, 25.4, 0), Vector(508.3, 25.4, 0)),  # 13
    Part.LineSegment(Vector(508.3, 25.4, 0), Vector(508.3, 146.9, 0)),  # 14
    Part.LineSegment(Vector(508.3, 146.9, 0), Vector(448.3, 146.9, 0)),  # 15
    Part.LineSegment(Vector(142.8, 146.9, 0), Vector(142.8, 25.4, 0)),  # 16
    Part.LineSegment(Vector(142.8, 25.4, 0), Vector(227.8, 25.4, 0)),  # 17
    Part.LineSegment(Vector(227.8, 25.4, 0), Vector(227.8, 146.9, 0)),  # 18
    Part.LineSegment(Vector(227.8, 146.9, 0), Vector(142.8, 146.9, 0)),  # 19
    Part.LineSegment(Vector(17.5, 146.9, 0), Vector(17.5, 25.4, 0)),  # 20
    Part.LineSegment(Vector(17.5, 25.4, 0), Vector(77.5, 25.4, 0)),  # 21
    Part.LineSegment(Vector(77.5, 25.4, 0), Vector(77.5, 146.9, 0)),  # 22
    Part.LineSegment(Vector(77.5, 146.9, 0), Vector(17.5, 146.9, 0)),  # 23
    Part.Circle(Vector(86.4, 263.2, 0), Vector(0, 0, 1), 2.4),  # 24
], False)
sketch9.addConstraint([
    Sketcher.Constraint("Coincident", 0, 2, 1, 1),
    Sketcher.Constraint("Coincident", 1, 2, 2, 1),
    Sketcher.Constraint("Coincident", 2, 2, 3, 1),
    Sketcher.Constraint("Coincident", 3, 2, 0, 1),
    Sketcher.Constraint("Coincident", 4, 2, 5, 1),
    Sketcher.Constraint("Coincident", 5, 2, 6, 1),
    Sketcher.Constraint("Coincident", 6, 2, 7, 1),
    Sketcher.Constraint("Coincident", 7, 2, 4, 1),
    Sketcher.Constraint("Coincident", 8, 2, 9, 1),
    Sketcher.Constraint("Coincident", 9, 2, 10, 1),
    Sketcher.Constraint("Coincident", 10, 2, 11, 1),
    Sketcher.Constraint("Coincident", 11, 2, 8, 1),
    Sketcher.Constraint("Coincident", 12, 2, 13, 1),
    Sketcher.Constraint("Coincident", 13, 2, 14, 1),
    Sketcher.Constraint("Coincident", 14, 2, 15, 1),
    Sketcher.Constraint("Coincident", 15, 2, 12, 1),
    Sketcher.Constraint("Coincident", 16, 2, 17, 1),
    Sketcher.Constraint("Coincident", 17, 2, 18, 1),
    Sketcher.Constraint("Coincident", 18, 2, 19, 1),
    Sketcher.Constraint("Coincident", 19, 2, 16, 1),
    Sketcher.Constraint("Coincident", 20, 2, 21, 1),
    Sketcher.Constraint("Coincident", 21, 2, 22, 1),
    Sketcher.Constraint("Coincident", 22, 2, 23, 1),
    Sketcher.Constraint("Coincident", 23, 2, 20, 1),
    Sketcher.Constraint("Horizontal", 0),
    Sketcher.Constraint("Vertical", 1),
    Sketcher.Constraint("Horizontal", 2),
    Sketcher.Constraint("Vertical", 3),
    Sketcher.Constraint("Horizontal", 4),
    Sketcher.Constraint("Vertical", 5),
    Sketcher.Constraint("Horizontal", 6),
    Sketcher.Constraint("Vertical", 7),
    Sketcher.Constraint("Vertical", 8),
    Sketcher.Constraint("Horizontal", 9),
    Sketcher.Constraint("Vertical", 10),
    Sketcher.Constraint("Horizontal", 11),
    Sketcher.Constraint("Vertical", 12),
    Sketcher.Constraint("Horizontal", 13),
    Sketcher.Constraint("Vertical", 14),
    Sketcher.Constraint("Horizontal", 15),
    Sketcher.Constraint("Vertical", 16),
    Sketcher.Constraint("Horizontal", 17),
    Sketcher.Constraint("Vertical", 18),
    Sketcher.Constraint("Horizontal", 19),
    Sketcher.Constraint("Vertical", 20),
    Sketcher.Constraint("Horizontal", 21),
    Sketcher.Constraint("Vertical", 22),
    Sketcher.Constraint("Horizontal", 23),
    Sketcher.Constraint("Horizontal", 2, 2, 12, 2),
    Sketcher.Constraint("Horizontal", 3, 2, 14, 2),
    Sketcher.Constraint("Horizontal", 13, 2, 16, 2),
    Sketcher.Constraint("Horizontal", 15, 2, 18, 2),
    Sketcher.Constraint("Horizontal", 17, 2, 20, 2),
    Sketcher.Constraint("Horizontal", 19, 2, 22, 2),
    Sketcher.Constraint("Vertical", 11, 2, 12, 2),
    Sketcher.Constraint("Vertical", 10, 2, 13, 2),
    Sketcher.Constraint("Vertical", 5, 2, 17, 2),
    Sketcher.Constraint("Vertical", 7, 2, 20, 2),
    Sketcher.Constraint("Equal", 2, 17),
    Sketcher.Constraint("Equal", 15, 21),
    Sketcher.Constraint("DistanceX", 0, 2, 0, 1, Q("85 mm")),
    Sketcher.Constraint("DistanceX", 9, 1, 9, 2, Q("60 mm")),
    Sketcher.Constraint("DistanceY", -1, 1, 1, 2, Q("25.4 mm")),
    Sketcher.Constraint("DistanceY", 5, 2, 24, 3, Q("25.4 mm")),
    Sketcher.Constraint("DistanceY", 1, 2, 1, 1, Q("121.5 mm")),
    Sketcher.Constraint("DistanceY", 8, 2, 8, 1, Q("94.4 mm")),
    Sketcher.Constraint("DistanceY", 1, 2, 4, 2, Q("185 mm")),
    Sketcher.Constraint("Diameter", 24, Q("4.7624 mm")),
    Sketcher.Constraint("DistanceY", 5, 1, 5, 2, Q("27.45 mm")),
    Sketcher.Constraint("DistanceY", -1, 1, 8, 2, Q("197.7 mm")),
    Sketcher.Constraint("DistanceX", 4, 2, 0, 2, Q("70.2 mm")),
    Sketcher.Constraint("DistanceX", 4, 1, 4, 2, Q("210.295 mm")),
    Sketcher.Constraint("DistanceX", -1, 1, 24, 3, Q("86.36 mm")),
    Sketcher.Constraint("DistanceX", -1, 1, 0, 2, Q("297.99 mm")),
    Sketcher.Constraint("DistanceX", -1, 1, 8, 2, Q("448.285 mm")),
])
sketch9.setExpression("Constraints[60]", "Params.sketch9_width")
sketch9.setExpression("Constraints[61]", "Params.sketch9_width2")
sketch9.setExpression("Constraints[64]", "Params.sketch9_height")
sketch9.setExpression("Constraints[65]", "Params.sketch9_height2")
sketch9.setExpression("Constraints[68]", "Params.sketch9_height3")
pocket8 = body.newObject("PartDesign::Pocket", "Pocket007")
pocket8.Profile = sketch9
pocket8.setExpression("Length", "Params.pocket8_length")

# Sketch on XY plane
sketch10 = body.newObject("Sketcher::SketchObject", "Sketch009")
sketch10.AttachmentSupport = (doc.getObject("XY_Plane"), [""])
sketch10.MapMode = "FlatFace"
sketch10.addGeometry([
    Part.Circle(Vector(137.8, 12.7, 0), Vector(0, 0, 1), 2),
    Part.Circle(Vector(224.4, 12.7, 0), Vector(0, 0, 1), 2),
    Part.Circle(Vector(388, 12.7, 0), Vector(0, 0, 1), 2),
    Part.Circle(Vector(301.4, 12.7, 0), Vector(0, 0, 1), 2),
], False)
sketch10.addConstraint([
    Sketcher.Constraint("Equal", 0, 1),
    Sketcher.Constraint("Equal", 1, 2),
    Sketcher.Constraint("Equal", 2, 3),
    Sketcher.Constraint("Horizontal", 0, 3, 1, 3),
    Sketcher.Constraint("Horizontal", 1, 3, 2, 3),
    Sketcher.Constraint("Horizontal", 2, 3, 3, 3),
    Sketcher.Constraint("Diameter", 0, Q("4 mm")),
    Sketcher.Constraint("DistanceX", -1, 1, 0, 3, Q("137.795 mm")),
    Sketcher.Constraint("DistanceY", -1, 1, 0, 3, Q("12.7 mm")),
    Sketcher.Constraint("DistanceX", 0, 3, 1, 3, Q("86.6025 mm")),
    Sketcher.Constraint("DistanceX", 3, 3, 2, 3, Q("86.6025 mm")),
    Sketcher.Constraint("DistanceX", 0, 3, 2, 3, Q("250.19 mm")),
])
sketch10.setExpression("Constraints[6]", "Params.sketch10_diameter")
pocket9 = body.newObject("PartDesign::Pocket", "Pocket008")
pocket9.Profile = sketch10
pocket9.setExpression("Length", "Params.pocket9_length")
pocket9.Reversed = True

# Sketch on XY plane
sketch11 = body.newObject("Sketcher::SketchObject", "Sketch010")
sketch11.AttachmentSupport = (doc.getObject("XY_Plane"), [""])
sketch11.MapMode = "FlatFace"
sketch11.addGeometry([
    Part.Circle(Vector(50, 12.7, 0), Vector(0, 0, 1), 2),
    Part.Circle(Vector(475.8, 12.7, 0), Vector(0, 0, 1), 2),
], False)
sketch11.addConstraint([
    Sketcher.Constraint("Equal", 0, 1),
    Sketcher.Constraint("Horizontal", 0, 3, 1, 3),
    Sketcher.Constraint("Diameter", 0, Q("4 mm")),
    Sketcher.Constraint("DistanceX", -1, 1, 0, 3, Q("50 mm")),
    Sketcher.Constraint("DistanceY", -1, 1, 0, 3, Q("12.7 mm")),
    Sketcher.Constraint("DistanceX", -1, 1, 1, 3, Q("475.78 mm")),
])
sketch11.setExpression("Constraints[2]", "Params.sketch11_diameter")
pocket10 = body.newObject("PartDesign::Pocket", "Pocket009")
pocket10.Profile = sketch11
pocket10.setExpression("Length", "Params.pocket10_length")
pocket10.Reversed = True

doc.recompute()
